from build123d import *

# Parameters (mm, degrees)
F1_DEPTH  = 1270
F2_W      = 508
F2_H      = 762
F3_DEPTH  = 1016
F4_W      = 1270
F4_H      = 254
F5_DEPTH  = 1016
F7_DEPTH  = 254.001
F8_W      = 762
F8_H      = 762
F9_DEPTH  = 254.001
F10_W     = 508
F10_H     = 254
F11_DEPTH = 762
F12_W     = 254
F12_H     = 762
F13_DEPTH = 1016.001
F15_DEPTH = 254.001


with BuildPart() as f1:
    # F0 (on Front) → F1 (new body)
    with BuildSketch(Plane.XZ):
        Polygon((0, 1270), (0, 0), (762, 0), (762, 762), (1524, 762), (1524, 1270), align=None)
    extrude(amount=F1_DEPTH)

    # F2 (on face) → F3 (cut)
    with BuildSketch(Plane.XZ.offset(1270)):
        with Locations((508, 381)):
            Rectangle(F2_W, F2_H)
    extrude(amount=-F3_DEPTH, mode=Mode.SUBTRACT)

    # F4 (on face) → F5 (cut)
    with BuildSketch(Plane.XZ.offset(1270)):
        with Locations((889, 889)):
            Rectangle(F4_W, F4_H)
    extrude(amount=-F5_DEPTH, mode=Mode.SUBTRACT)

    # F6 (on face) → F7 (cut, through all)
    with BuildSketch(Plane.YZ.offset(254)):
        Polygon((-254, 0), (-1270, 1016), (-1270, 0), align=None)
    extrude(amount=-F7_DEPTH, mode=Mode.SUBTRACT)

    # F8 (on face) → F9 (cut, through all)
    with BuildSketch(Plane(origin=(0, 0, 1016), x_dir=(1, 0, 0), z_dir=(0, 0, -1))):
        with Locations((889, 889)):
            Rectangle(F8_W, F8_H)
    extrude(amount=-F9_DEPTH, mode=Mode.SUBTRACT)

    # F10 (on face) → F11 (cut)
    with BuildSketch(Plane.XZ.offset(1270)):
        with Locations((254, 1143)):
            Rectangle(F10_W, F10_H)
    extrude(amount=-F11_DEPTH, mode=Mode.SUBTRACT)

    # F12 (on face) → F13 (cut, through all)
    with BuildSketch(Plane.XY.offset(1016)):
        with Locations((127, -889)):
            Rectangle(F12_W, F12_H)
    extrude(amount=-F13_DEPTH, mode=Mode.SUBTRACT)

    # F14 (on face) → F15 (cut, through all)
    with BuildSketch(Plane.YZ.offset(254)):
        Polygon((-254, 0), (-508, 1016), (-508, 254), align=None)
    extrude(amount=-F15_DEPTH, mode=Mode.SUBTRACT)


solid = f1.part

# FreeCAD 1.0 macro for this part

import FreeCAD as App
import Part
import Sketcher
from FreeCAD import Vector
Q = App.Units.Quantity

doc = App.newDocument("Part")
body = doc.addObject("PartDesign::Body", "Body")

# Sketch on XZ plane
sketch1 = body.newObject("Sketcher::SketchObject", "Sketch")
sketch1.AttachmentSupport = (doc.getObject("XZ_Plane"), [""])
sketch1.MapMode = "FlatFace"
sketch1.addGeometry(Part.LineSegment(Vector(0, 1270, 0), Vector(0, 0, 0)), False)
sketch1.addGeometry(Part.LineSegment(Vector(0, 0, 0), Vector(762, 0, 0)), False)
sketch1.addGeometry(Part.LineSegment(Vector(762, 0, 0), Vector(762, 762, 0)), False)
sketch1.addGeometry(Part.LineSegment(Vector(762, 762, 0), Vector(1524, 762, 0)), False)
sketch1.addGeometry(Part.LineSegment(Vector(1524, 762, 0), Vector(1524, 1270, 0)), False)
sketch1.addGeometry(Part.LineSegment(Vector(1524, 1270, 0), Vector(0, 1270, 0)), False)
sketch1.addConstraint(Sketcher.Constraint("Coincident", 0, 2, 1, 1))
sketch1.addConstraint(Sketcher.Constraint("Coincident", 1, 2, 2, 1))
sketch1.addConstraint(Sketcher.Constraint("Coincident", 2, 2, 3, 1))
sketch1.addConstraint(Sketcher.Constraint("Coincident", 3, 2, 4, 1))
sketch1.addConstraint(Sketcher.Constraint("Coincident", 4, 2, 5, 1))
sketch1.addConstraint(Sketcher.Constraint("Coincident", 5, 2, 0, 1))
sketch1.addConstraint(Sketcher.Constraint("Vertical", 0))
sketch1.addConstraint(Sketcher.Constraint("Horizontal", 1))
sketch1.addConstraint(Sketcher.Constraint("Vertical", 2))
sketch1.addConstraint(Sketcher.Constraint("Horizontal", 3))
sketch1.addConstraint(Sketcher.Constraint("Vertical", 4))
sketch1.addConstraint(Sketcher.Constraint("Horizontal", 5))
sketch1.addConstraint(Sketcher.Constraint("Coincident", 0, 2, -1, 1))
sketch1.addConstraint(Sketcher.Constraint("Equal", 1, 3))
sketch1.addConstraint(Sketcher.Constraint("Equal", 3, 2))
sketch1.addConstraint(Sketcher.Constraint("DistanceX", 1, 1, 1, 2, Q("30 in")))
sketch1.addConstraint(Sketcher.Constraint("DistanceY", 0, 2, 0, 1, Q("50 in")))
pad1 = body.newObject("PartDesign::Pad", "Pad")
pad1.Profile = sketch1
pad1.Length = Q("50 in")

# Sketch on XZ plane
sketch2 = body.newObject("Sketcher::SketchObject", "Sketch001")
sketch2.AttachmentSupport = (doc.getObject("XZ_Plane"), [""])
sketch2.MapMode = "FlatFace"
sketch2.AttachmentOffset = App.Placement(Vector(0, 0, 50 * 25.4), App.Rotation())
sketch2.addGeometry(Part.LineSegment(Vector(254, 762, 0), Vector(254, 0, 0)), False)
sketch2.addGeometry(Part.LineSegment(Vector(254, 0, 0), Vector(762, 0, 0)), False)
sketch2.addGeometry(Part.LineSegment(Vector(762, 0, 0), Vector(762, 762, 0)), False)
sketch2.addGeometry(Part.LineSegment(Vector(762, 762, 0), Vector(254, 762, 0)), False)
sketch2.addConstraint(Sketcher.Constraint("Coincident", 0, 2, 1, 1))
sketch2.addConstraint(Sketcher.Constraint("Coincident", 1, 2, 2, 1))
sketch2.addConstraint(Sketcher.Constraint("Coincident", 2, 2, 3, 1))
sketch2.addConstraint(Sketcher.Constraint("Coincident", 3, 2, 0, 1))
sketch2.addConstraint(Sketcher.Constraint("Vertical", 0))
sketch2.addConstraint(Sketcher.Constraint("Horizontal", 1))
sketch2.addConstraint(Sketcher.Constraint("Vertical", 2))
sketch2.addConstraint(Sketcher.Constraint("Horizontal", 3))
sketch2.addConstraint(Sketcher.Constraint("PointOnObject", 0, 2, -1))
sketch2.addConstraint(Sketcher.Constraint("DistanceX", 1, 1, 1, 2, Q("20 in")))
sketch2.addConstraint(Sketcher.Constraint("DistanceY", 0, 2, 0, 1, Q("30 in")))
sketch2.addConstraint(Sketcher.Constraint("DistanceX", -1, 1, 0, 2, Q("10 in")))
pocket1 = body.newObject("PartDesign::Pocket", "Pocket")
pocket1.Profile = sketch2
pocket1.Length = Q("40 in")

# Sketch on XZ plane
sketch3 = body.newObject("Sketcher::SketchObject", "Sketch002")
sketch3.AttachmentSupport = (doc.getObject("XZ_Plane"), [""])
sketch3.MapMode = "FlatFace"
sketch3.AttachmentOffset = App.Placement(Vector(0, 0, 50 * 25.4), App.Rotation())
sketch3.addGeometry(Part.LineSegment(Vector(254, 1016, 0), Vector(254, 762, 0)), False)
sketch3.addGeometry(Part.LineSegment(Vector(254, 762, 0), Vector(1524, 762, 0)), False)
sketch3.addGeometry(Part.LineSegment(Vector(1524, 762, 0), Vector(1524, 1016, 0)), False)
sketch3.addGeometry(Part.LineSegment(Vector(1524, 1016, 0), Vector(254, 1016, 0)), False)
sketch3.addConstraint(Sketcher.Constraint("Coincident", 0, 2, 1, 1))
sketch3.addConstraint(Sketcher.Constraint("Coincident", 1, 2, 2, 1))
sketch3.addConstraint(Sketcher.Constraint("Coincident", 2, 2, 3, 1))
sketch3.addConstraint(Sketcher.Constraint("Coincident", 3, 2, 0, 1))
sketch3.addConstraint(Sketcher.Constraint("Vertical", 0))
sketch3.addConstraint(Sketcher.Constraint("Horizontal", 1))
sketch3.addConstraint(Sketcher.Constraint("Vertical", 2))
sketch3.addConstraint(Sketcher.Constraint("Horizontal", 3))
sketch3.addConstraint(Sketcher.Constraint("DistanceX", 1, 1, 1, 2, Q("50 in")))
sketch3.addConstraint(Sketcher.Constraint("DistanceY", 0, 2, 0, 1, Q("10 in")))
sketch3.addConstraint(Sketcher.Constraint("DistanceX", -1, 1, 0, 2, Q("10 in")))
sketch3.addConstraint(Sketcher.Constraint("DistanceY", -1, 1, 0, 2, Q("30 in")))
pocket2 = body.newObject("PartDesign::Pocket", "Pocket001")
pocket2.Profile = sketch3
pocket2.Length = Q("40 in")

# Sketch on YZ plane
sketch4 = body.newObject("Sketcher::SketchObject", "Sketch003")
sketch4.AttachmentSupport = (doc.getObject("YZ_Plane"), [""])
sketch4.MapMode = "FlatFace"
sketch4.AttachmentOffset = App.Placement(Vector(0, 0, 10 * 25.4), App.Rotation())
sketch4.addGeometry(Part.LineSegment(Vector(-254, 0, 0), Vector(-1270, 1016, 0)), False)
sketch4.addGeometry(Part.LineSegment(Vector(-1270, 1016, 0), Vector(-1270, 0, 0)), False)
sketch4.addGeometry(Part.LineSegment(Vector(-1270, 0, 0), Vector(-254, 0, 0)), False)
sketch4.addConstraint(Sketcher.Constraint("Coincident", 0, 2, 1, 1))
sketch4.addConstraint(Sketcher.Constraint("Coincident", 1, 2, 2, 1))
sketch4.addConstraint(Sketcher.Constraint("Coincident", 2, 2, 0, 1))
sketch4.addConstraint(Sketcher.Constraint("Vertical", 1))
sketch4.addConstraint(Sketcher.Constraint("Horizontal", 2))
sketch4.addConstraint(Sketcher.Constraint("PointOnObject", 1, 2, -1))
sketch4.addConstraint(Sketcher.Constraint("Equal", 2, 1))
sketch4.addConstraint(Sketcher.Constraint("DistanceX", 2, 1, 2, 2, Q("40 in")))
sketch4.addConstraint(Sketcher.Constraint("DistanceX", 0, 2, -1, 1, Q("50 in")))
pocket3 = body.newObject("PartDesign::Pocket", "Pocket002")
pocket3.Profile = sketch4
pocket3.Type = "ThroughAll"

# Sketch on XY plane
sketch5 = body.newObject("Sketcher::SketchObject", "Sketch004")
sketch5.AttachmentSupport = (doc.getObject("XY_Plane"), [""])
sketch5.MapMode = "FlatFace"
sketch5.AttachmentOffset = App.Placement(Vector(0, 0, 40 * 25.4), App.Rotation())
sketch5.addGeometry(Part.LineSegment(Vector(508, -1270, 0), Vector(508, -508, 0)), False)
sketch5.addGeometry(Part.LineSegment(Vector(508, -508, 0), Vector(1270, -508, 0)), False)
sketch5.addGeometry(Part.LineSegment(Vector(1270, -508, 0), Vector(1270, -1270, 0)), False)
sketch5.addGeometry(Part.LineSegment(Vector(1270, -1270, 0), Vector(508, -1270, 0)), False)
sketch5.addConstraint(Sketcher.Constraint("Coincident", 0, 2, 1, 1))
sketch5.addConstraint(Sketcher.Constraint("Coincident", 1, 2, 2, 1))
sketch5.addConstraint(Sketcher.Constraint("Coincident", 2, 2, 3, 1))
sketch5.addConstraint(Sketcher.Constraint("Coincident", 3, 2, 0, 1))
sketch5.addConstraint(Sketcher.Constraint("Vertical", 0))
sketch5.addConstraint(Sketcher.Constraint("Horizontal", 1))
sketch5.addConstraint(Sketcher.Constraint("Vertical", 2))
sketch5.addConstraint(Sketcher.Constraint("Horizontal", 3))
sketch5.addConstraint(Sketcher.Constraint("Equal", 3, 0))
sketch5.addConstraint(Sketcher.Constraint("DistanceX", 1, 1, 1, 2, Q("30 in")))
sketch5.addConstraint(Sketcher.Constraint("DistanceX", -1, 1, 0, 2, Q("20 in")))
sketch5.addConstraint(Sketcher.Constraint("DistanceY", 0, 2, -1, 1, Q("20 in")))
pocket4 = body.newObject("PartDesign::Pocket", "Pocket003")
pocket4.Profile = sketch5
pocket4.Type = "ThroughAll"
pocket4.Reversed = True

# Sketch on XZ plane
sketch6 = body.newObject("Sketcher::SketchObject", "Sketch005")
sketch6.AttachmentSupport = (doc.getObject("XZ_Plane"), [""])
sketch6.MapMode = "FlatFace"
sketch6.AttachmentOffset = App.Placement(Vector(0, 0, 50 * 25.4), App.Rotation())
sketch6.addGeometry(Part.LineSegment(Vector(0, 1270, 0), Vector(0, 1016, 0)), False)
sketch6.addGeometry(Part.LineSegment(Vector(0, 1016, 0), Vector(508, 1016, 0)), False)
sketch6.addGeometry(Part.LineSegment(Vector(508, 1016, 0), Vector(508, 1270, 0)), False)
sketch6.addGeometry(Part.LineSegment(Vector(508, 1270, 0), Vector(0, 1270, 0)), False)
sketch6.addConstraint(Sketcher.Constraint("Coincident", 0, 2, 1, 1))
sketch6.addConstraint(Sketcher.Constraint("Coincident", 1, 2, 2, 1))
sketch6.addConstraint(Sketcher.Constraint("Coincident", 2, 2, 3, 1))
sketch6.addConstraint(Sketcher.Constraint("Coincident", 3, 2, 0, 1))
sketch6.addConstraint(Sketcher.Constraint("Vertical", 0))
sketch6.addConstraint(Sketcher.Constraint("Horizontal", 1))
sketch6.addConstraint(Sketcher.Constraint("Vertical", 2))
sketch6.addConstraint(Sketcher.Constraint("Horizontal", 3))
sketch6.addConstraint(Sketcher.Constraint("PointOnObject", 0, 2, -2))
sketch6.addConstraint(Sketcher.Constraint("DistanceX", 1, 1, 1, 2, Q("20 in")))
sketch6.addConstraint(Sketcher.Constraint("DistanceY", 0, 2, 0, 1, Q("10 in")))
sketch6.addConstraint(Sketcher.Constraint("DistanceY", -1, 1, 0, 2, Q("40 in")))
pocket5 = body.newObject("PartDesign::Pocket", "Pocket004")
pocket5.Profile = sketch6
pocket5.Length = Q("30 in")

# Sketch on XY plane
sketch7 = body.newObject("Sketcher::SketchObject", "Sketch006")
sketch7.AttachmentSupport = (doc.getObject("XY_Plane"), [""])
sketch7.MapMode = "FlatFace"
sketch7.AttachmentOffset = App.Placement(Vector(0, 0, 40 * 25.4), App.Rotation())
sketch7.addGeometry(Part.LineSegment(Vector(0, -508, 0), Vector(0, -1270, 0)), False)
sketch7.addGeometry(Part.LineSegment(Vector(0, -1270, 0), Vector(254, -1270, 0)), False)
sketch7.addGeometry(Part.LineSegment(Vector(254, -1270, 0), Vector(254, -508, 0)), False)
sketch7.addGeometry(Part.LineSegment(Vector(254, -508, 0), Vector(0, -508, 0)), False)
sketch7.addConstraint(Sketcher.Constraint("Coincident", 0, 2, 1, 1))
sketch7.addConstraint(Sketcher.Constraint("Coincident", 1, 2, 2, 1))
sketch7.addConstraint(Sketcher.Constraint("Coincident", 2, 2, 3, 1))
sketch7.addConstraint(Sketcher.Constraint("Coincident", 3, 2, 0, 1))
sketch7.addConstraint(Sketcher.Constraint("Vertical", 0))
sketch7.addConstraint(Sketcher.Constraint("Horizontal", 1))
sketch7.addConstraint(Sketcher.Constraint("Vertical", 2))
sketch7.addConstraint(Sketcher.Constraint("Horizontal", 3))
sketch7.addConstraint(Sketcher.Constraint("PointOnObject", 0, 2, -2))
sketch7.addConstraint(Sketcher.Constraint("DistanceX", 1, 1, 1, 2, Q("10 in")))
sketch7.addConstraint(Sketcher.Constraint("DistanceY", 0, 2, 0, 1, Q("30 in")))
sketch7.addConstraint(Sketcher.Constraint("DistanceY", 0, 2, -1, 1, Q("50 in")))
pocket6 = body.newObject("PartDesign::Pocket", "Pocket005")
pocket6.Profile = sketch7
pocket6.Type = "ThroughAll"

# Sketch on YZ plane
sketch8 = body.newObject("Sketcher::SketchObject", "Sketch007")
sketch8.AttachmentSupport = (doc.getObject("YZ_Plane"), [""])
sketch8.MapMode = "FlatFace"
sketch8.AttachmentOffset = App.Placement(Vector(0, 0, 10 * 25.4), App.Rotation())
sketch8.addGeometry(Part.LineSegment(Vector(-254, 0, 0), Vector(-508, 1016, 0)), False)
sketch8.addGeometry(Part.LineSegment(Vector(-508, 1016, 0), Vector(-508, 254, 0)), False)
sketch8.addGeometry(Part.LineSegment(Vector(-508, 254, 0), Vector(-254, 0, 0)), False)
sketch8.addConstraint(Sketcher.Constraint("Coincident", 0, 2, 1, 1))
sketch8.addConstraint(Sketcher.Constraint("Coincident", 1, 2, 2, 1))
sketch8.addConstraint(Sketcher.Constraint("Coincident", 2, 2, 0, 1))
sketch8.addConstraint(Sketcher.Constraint("Vertical", 1))
sketch8.addConstraint(Sketcher.Constraint("PointOnObject", 2, 2, -1))
sketch8.addConstraint(Sketcher.Constraint("DistanceY", 1, 2, 1, 1, Q("30 in")))
sketch8.addConstraint(Sketcher.Constraint("DistanceX", 0, 2, -1, 1, Q("20 in")))
sketch8.addConstraint(Sketcher.Constraint("DistanceY", -1, 1, 0, 2, Q("40 in")))
sketch8.addConstraint(Sketcher.Constraint("DistanceX", 2, 2, -1, 1, Q("10 in")))
pocket7 = body.newObject("PartDesign::Pocket", "Pocket006")
pocket7.Profile = sketch8
pocket7.Type = "ThroughAll"

doc.recompute()
